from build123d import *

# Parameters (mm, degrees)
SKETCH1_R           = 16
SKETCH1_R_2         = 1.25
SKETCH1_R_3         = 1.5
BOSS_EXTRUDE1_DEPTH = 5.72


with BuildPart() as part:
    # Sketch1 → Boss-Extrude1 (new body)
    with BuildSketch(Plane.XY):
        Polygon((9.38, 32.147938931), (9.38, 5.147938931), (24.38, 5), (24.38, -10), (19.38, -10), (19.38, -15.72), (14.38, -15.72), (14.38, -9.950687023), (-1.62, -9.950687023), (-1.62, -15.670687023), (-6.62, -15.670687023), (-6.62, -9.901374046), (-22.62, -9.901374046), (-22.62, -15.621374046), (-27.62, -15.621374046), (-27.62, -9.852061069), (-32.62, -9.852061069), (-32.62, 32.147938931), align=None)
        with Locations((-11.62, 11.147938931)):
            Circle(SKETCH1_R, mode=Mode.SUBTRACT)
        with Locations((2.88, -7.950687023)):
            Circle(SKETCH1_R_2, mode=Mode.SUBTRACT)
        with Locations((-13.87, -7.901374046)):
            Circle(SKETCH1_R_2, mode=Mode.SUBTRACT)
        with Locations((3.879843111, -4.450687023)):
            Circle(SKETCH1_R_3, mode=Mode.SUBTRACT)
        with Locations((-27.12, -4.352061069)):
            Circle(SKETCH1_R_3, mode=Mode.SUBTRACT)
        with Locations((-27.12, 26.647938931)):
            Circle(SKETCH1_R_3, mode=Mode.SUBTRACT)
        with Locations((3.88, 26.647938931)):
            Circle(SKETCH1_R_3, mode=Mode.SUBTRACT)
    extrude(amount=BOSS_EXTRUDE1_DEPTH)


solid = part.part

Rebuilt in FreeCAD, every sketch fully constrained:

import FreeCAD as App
import Part
import Sketcher
Q = App.Units.Quantity


def add_polygon(sketch, points):
    """Adds a closed chain of lines whose ends are joined by coincident constraints."""
    first, n = sketch.GeometryCount, len(points)
    for a, b in zip(points, points[1:] + points[:1]):
        sketch.addGeometry(Part.LineSegment(App.Vector(*a, 0), App.Vector(*b, 0)), False)
    for i in range(n):
        sketch.addConstraint(Sketcher.Constraint("Coincident", first + i, 2, first + (i + 1) % n, 1))

doc = App.newDocument("Part")
params = doc.addObject("Spreadsheet::Sheet", "Params")
for row, (alias, value) in enumerate([
    ("sketch1_diameter", "3 mm"),
    ("sketch1_diameter2", "32 mm"),
    ("sketch1_diameter3", "2.5 mm"),
    ("sketch1_width", "42 mm"),
    ("sketch1_width2", "5 mm"),
    ("pad1_length", "5.72 mm"),
], start=1):
    params.set(f"A{row}", alias)
    params.set(f"B{row}", "=" + value)
    params.setAlias(f"B{row}", alias)

body = doc.addObject("PartDesign::Body", "Body")

# Sketch on XY plane
sketch1 = doc.addObject("Sketcher::SketchObject", "Sketch")
body.addObject(sketch1)
sketch1.AttachmentSupport = (doc.XY_Plane, [""])
sketch1.MapMode = "FlatFace"
add_polygon(sketch1, [(9.4, 5.1), (9.4, 32.1), (-32.6, 32.1), (-32.6, -9.9), (-27.6, -9.9), (-27.6, -15.6), (-22.6, -15.6), (-22.6, -9.9), (-6.6, -9.9), (-6.6, -15.7), (-1.6, -15.7), (-1.6, -10), (14.4, -10), (14.4, -15.7), (19.4, -15.7), (19.4, -10), (24.4, -10), (24.4, 5)])  # lines 0-17
sketch1.addGeometry(Part.Circle(App.Vector(2.9, -8, 0), App.Vector(0, 0, 1), 1.2), False)  # 18
sketch1.addGeometry(Part.Circle(App.Vector(3.9, -4.5, 0), App.Vector(0, 0, 1), 1.5), False)  # 19
sketch1.addGeometry(Part.Circle(App.Vector(-13.9, -7.9, 0), App.Vector(0, 0, 1), 1.2), False)  # 20
sketch1.addGeometry(Part.Circle(App.Vector(-27.1, -4.4, 0), App.Vector(0, 0, 1), 1.5), False)  # 21
sketch1.addGeometry(Part.Circle(App.Vector(3.9, 26.6, 0), App.Vector(0, 0, 1), 1.5), False)  # 22
sketch1.addGeometry(Part.Circle(App.Vector(-11.6, 11.1, 0), App.Vector(0, 0, 1), 16), False)  # 23
sketch1.addGeometry(Part.Circle(App.Vector(-27.1, 26.6, 0), App.Vector(0, 0, 1), 1.5), False)  # 24
sketch1.addConstraint([
    Sketcher.Constraint("Vertical", 0),
    Sketcher.Constraint("Horizontal", 1),
    Sketcher.Constraint("Vertical", 2),
    Sketcher.Constraint("Horizontal", 3),
    Sketcher.Constraint("Vertical", 4),
    Sketcher.Constraint("Horizontal", 5),
    Sketcher.Constraint("Vertical", 6),
    Sketcher.Constraint("Horizontal", 7),
    Sketcher.Constraint("Vertical", 8),
    Sketcher.Constraint("Horizontal", 9),
    Sketcher.Constraint("Vertical", 10),
    Sketcher.Constraint("Horizontal", 11),
    Sketcher.Constraint("Vertical", 12),
    Sketcher.Constraint("Horizontal", 13),
    Sketcher.Constraint("Vertical", 14),
    Sketcher.Constraint("Horizontal", 15),
    Sketcher.Constraint("Vertical", 16),
    Sketcher.Constraint("Equal", 18, 20),
    Sketcher.Constraint("Equal", 19, 21),
    Sketcher.Constraint("Equal", 21, 22),
    Sketcher.Constraint("Equal", 22, 24),
    Sketcher.Constraint("Horizontal", 22, 3, 24, 3),
    Sketcher.Constraint("Vertical", 21, 3, 24, 3),
    Sketcher.Constraint("Equal", 3, 5),
    Sketcher.Constraint("Equal", 5, 9),
    Sketcher.Constraint("Equal", 7, 11),
    Sketcher.Constraint("Equal", 9, 13),
    Sketcher.Constraint("Equal", 13, 15),
    Sketcher.Constraint("Equal", 1, 2),
    Sketcher.Constraint("Equal", 4, 8),
    Sketcher.Constraint("Equal", 6, 10),
    Sketcher.Constraint("Equal", 8, 12),
    Sketcher.Constraint("Equal", 10, 14),
    Sketcher.Constraint("Diameter", 19, Q("3 mm")),
    Sketcher.Constraint("Diameter", 23, Q("32 mm")),
    Sketcher.Constraint("Diameter", 18, Q("2.5 mm")),
    Sketcher.Constraint("DistanceX", 1, 2, 1, 1, Q("42 mm")),
    Sketcher.Constraint("DistanceX", 3, 1, 3, 2, Q("5 mm")),
    Sketcher.Constraint("DistanceX", 7, 1, 7, 2, Q("16 mm")),
    Sketcher.Constraint("DistanceY", 0, 1, 0, 2, Q("27 mm")),
    Sketcher.Constraint("DistanceY", 16, 1, 16, 2, Q("15 mm")),
    Sketcher.Constraint("DistanceY", 14, 2, -1, 1, Q("10 mm")),
    Sketcher.Constraint("DistanceX", 21, 3, 18, 3, Q("30 mm")),
    Sketcher.Constraint("DistanceX", 18, 3, 22, 3, Q("1 mm")),
    Sketcher.Constraint("DistanceY", 21, 3, 22, 3, Q("31 mm")),
    Sketcher.Constraint("DistanceX", 23, 3, 0, 2, Q("21 mm")),
    Sketcher.Constraint("DistanceY", 23, 3, 0, 2, Q("21 mm")),
    Sketcher.Constraint("DistanceY", 6, 2, 20, 3, Q("2 mm")),
    Sketcher.Constraint("DistanceY", 10, 2, 18, 3, Q("2 mm")),
    Sketcher.Constraint("DistanceY", 6, 1, 6, 2, Q("5.72 mm")),
    Sketcher.Constraint("DistanceY", 18, 3, 19, 3, Q("3.5 mm")),
    Sketcher.Constraint("DistanceX", 23, 3, 22, 3, Q("15.5 mm")),
    Sketcher.Constraint("DistanceY", 23, 3, 22, 3, Q("15.5 mm")),
    Sketcher.Constraint("DistanceX", -1, 1, 18, 3, Q("2.88 mm")),
    Sketcher.Constraint("DistanceX", 20, 3, -1, 1, Q("13.87 mm")),
    Sketcher.Constraint("DistanceY", 4, 2, 4, 1, Q("5.769313 mm")),
    Sketcher.Constraint("DistanceX", -1, 1, 19, 3, Q("3.879843 mm")),
])
sketch1.setExpression("Constraints[51]", "Params.sketch1_diameter")
sketch1.setExpression("Constraints[52]", "Params.sketch1_diameter2")
sketch1.setExpression("Constraints[53]", "Params.sketch1_diameter3")
sketch1.setExpression("Constraints[54]", "Params.sketch1_width")
sketch1.setExpression("Constraints[55]", "Params.sketch1_width2")
pad1 = doc.addObject("PartDesign::Pad", "Pad")
body.addObject(pad1)
pad1.Profile = sketch1
pad1.setExpression("Length", "Params.pad1_length")

doc.recompute()
